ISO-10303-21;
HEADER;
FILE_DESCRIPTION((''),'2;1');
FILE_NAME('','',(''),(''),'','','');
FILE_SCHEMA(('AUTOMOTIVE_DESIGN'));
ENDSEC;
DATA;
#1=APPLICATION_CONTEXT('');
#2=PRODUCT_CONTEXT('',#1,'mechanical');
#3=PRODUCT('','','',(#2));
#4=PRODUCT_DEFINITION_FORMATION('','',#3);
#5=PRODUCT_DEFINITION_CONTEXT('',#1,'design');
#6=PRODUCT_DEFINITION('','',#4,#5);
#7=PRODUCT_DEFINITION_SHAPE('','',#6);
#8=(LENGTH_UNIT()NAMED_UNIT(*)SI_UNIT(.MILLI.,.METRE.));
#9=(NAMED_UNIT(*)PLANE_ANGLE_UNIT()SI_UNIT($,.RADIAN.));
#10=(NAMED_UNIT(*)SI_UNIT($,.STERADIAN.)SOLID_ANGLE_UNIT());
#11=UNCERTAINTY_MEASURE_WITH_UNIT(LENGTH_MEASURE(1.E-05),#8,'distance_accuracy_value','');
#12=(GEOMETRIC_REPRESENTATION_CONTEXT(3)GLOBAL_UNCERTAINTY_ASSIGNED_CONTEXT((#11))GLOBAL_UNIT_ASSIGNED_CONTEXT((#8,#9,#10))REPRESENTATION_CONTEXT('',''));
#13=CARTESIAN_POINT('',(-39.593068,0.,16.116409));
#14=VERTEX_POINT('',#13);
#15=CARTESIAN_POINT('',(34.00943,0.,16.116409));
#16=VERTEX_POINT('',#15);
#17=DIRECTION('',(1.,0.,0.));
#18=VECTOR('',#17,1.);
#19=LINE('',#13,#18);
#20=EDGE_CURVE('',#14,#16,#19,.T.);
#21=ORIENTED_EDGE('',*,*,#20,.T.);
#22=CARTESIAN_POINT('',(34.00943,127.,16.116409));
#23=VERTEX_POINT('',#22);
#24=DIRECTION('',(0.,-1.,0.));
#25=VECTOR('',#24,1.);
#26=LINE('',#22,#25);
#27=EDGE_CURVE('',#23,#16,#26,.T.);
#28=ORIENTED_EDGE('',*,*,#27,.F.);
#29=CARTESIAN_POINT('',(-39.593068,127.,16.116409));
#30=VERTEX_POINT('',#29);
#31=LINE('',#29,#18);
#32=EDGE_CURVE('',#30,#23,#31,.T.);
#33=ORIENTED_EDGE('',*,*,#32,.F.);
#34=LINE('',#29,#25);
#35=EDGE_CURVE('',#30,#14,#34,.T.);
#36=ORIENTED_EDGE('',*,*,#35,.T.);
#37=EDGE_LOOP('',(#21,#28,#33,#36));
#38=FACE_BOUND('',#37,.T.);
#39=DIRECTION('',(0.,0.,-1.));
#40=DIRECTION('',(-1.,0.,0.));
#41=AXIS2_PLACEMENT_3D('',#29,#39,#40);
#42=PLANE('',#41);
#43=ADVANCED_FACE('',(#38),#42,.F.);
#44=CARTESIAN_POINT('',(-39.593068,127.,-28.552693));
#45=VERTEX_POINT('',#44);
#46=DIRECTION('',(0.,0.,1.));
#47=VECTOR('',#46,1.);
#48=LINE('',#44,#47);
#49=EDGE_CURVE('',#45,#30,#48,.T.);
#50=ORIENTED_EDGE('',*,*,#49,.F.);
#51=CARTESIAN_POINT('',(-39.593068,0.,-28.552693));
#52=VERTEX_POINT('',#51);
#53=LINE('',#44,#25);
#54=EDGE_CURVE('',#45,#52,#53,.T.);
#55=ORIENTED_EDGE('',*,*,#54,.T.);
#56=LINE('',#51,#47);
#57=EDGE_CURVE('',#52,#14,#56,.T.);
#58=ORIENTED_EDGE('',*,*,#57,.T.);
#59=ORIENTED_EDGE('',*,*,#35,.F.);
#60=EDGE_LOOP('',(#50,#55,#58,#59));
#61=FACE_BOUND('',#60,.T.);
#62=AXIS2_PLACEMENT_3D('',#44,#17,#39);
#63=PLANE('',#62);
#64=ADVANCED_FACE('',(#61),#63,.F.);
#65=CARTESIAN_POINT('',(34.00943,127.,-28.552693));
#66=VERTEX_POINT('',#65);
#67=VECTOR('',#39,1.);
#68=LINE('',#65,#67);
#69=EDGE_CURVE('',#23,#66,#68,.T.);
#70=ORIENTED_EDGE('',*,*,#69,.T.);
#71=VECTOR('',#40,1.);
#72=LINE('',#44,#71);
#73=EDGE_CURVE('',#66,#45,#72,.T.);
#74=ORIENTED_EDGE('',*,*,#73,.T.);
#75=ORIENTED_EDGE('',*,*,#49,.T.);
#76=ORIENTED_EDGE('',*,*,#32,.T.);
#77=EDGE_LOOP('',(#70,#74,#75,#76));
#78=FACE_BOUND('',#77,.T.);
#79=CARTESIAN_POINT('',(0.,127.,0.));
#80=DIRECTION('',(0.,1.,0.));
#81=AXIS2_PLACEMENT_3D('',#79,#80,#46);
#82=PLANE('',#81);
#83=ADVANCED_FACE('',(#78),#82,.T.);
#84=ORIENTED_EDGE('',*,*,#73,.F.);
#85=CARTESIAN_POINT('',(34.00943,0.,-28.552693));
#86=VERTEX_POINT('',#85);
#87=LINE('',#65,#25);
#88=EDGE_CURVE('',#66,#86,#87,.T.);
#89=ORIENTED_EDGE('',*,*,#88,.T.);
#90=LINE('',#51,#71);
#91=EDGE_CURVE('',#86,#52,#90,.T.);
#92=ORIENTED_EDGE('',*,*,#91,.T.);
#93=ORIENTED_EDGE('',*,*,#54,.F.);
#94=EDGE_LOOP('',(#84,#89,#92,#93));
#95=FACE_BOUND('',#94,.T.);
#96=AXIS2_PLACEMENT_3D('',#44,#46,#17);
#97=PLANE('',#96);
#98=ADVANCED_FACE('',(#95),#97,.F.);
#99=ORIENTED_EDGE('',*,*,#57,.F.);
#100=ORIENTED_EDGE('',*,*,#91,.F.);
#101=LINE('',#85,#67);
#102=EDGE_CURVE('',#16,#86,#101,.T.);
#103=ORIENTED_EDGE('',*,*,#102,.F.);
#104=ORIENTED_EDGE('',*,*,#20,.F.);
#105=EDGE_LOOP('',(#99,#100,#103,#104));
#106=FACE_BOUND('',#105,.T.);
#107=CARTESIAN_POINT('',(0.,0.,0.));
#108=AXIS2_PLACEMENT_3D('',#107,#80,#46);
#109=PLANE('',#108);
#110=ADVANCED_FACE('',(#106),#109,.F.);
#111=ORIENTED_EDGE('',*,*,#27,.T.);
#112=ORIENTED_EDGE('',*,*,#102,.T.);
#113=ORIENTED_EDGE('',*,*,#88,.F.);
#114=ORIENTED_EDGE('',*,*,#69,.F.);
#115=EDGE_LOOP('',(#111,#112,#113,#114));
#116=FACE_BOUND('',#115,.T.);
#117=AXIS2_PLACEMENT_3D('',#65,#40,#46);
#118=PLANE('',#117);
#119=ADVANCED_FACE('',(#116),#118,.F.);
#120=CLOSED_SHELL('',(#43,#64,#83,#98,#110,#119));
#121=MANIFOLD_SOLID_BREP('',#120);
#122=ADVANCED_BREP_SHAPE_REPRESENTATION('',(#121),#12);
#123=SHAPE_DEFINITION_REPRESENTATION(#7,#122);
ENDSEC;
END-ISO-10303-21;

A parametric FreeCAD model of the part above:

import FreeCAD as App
import Part
import Sketcher


def add_polygon(sketch, points):
    """Adds a closed chain of lines whose ends are joined by coincident constraints."""
    first, n = sketch.GeometryCount, len(points)
    for a, b in zip(points, points[1:] + points[:1]):
        sketch.addGeometry(Part.LineSegment(App.Vector(*a, 0), App.Vector(*b, 0)), False)
    for i in range(n):
        sketch.addConstraint(Sketcher.Constraint("Coincident", first + i, 2, first + (i + 1) % n, 1))

doc = App.newDocument("Part")
params = doc.addObject("Spreadsheet::Sheet", "Params")
for row, (alias, value) in enumerate([
    ("pad1_length", "5 in"),
], start=1):
    params.set(f"A{row}", alias)
    params.set(f"B{row}", "=" + value)
    params.setAlias(f"B{row}", alias)

body = doc.addObject("PartDesign::Body", "Body")

sketch1 = body.newObject("Sketcher::SketchObject", "Sketch")
sketch1.AttachmentSupport = (doc.getObject("XZ_Plane"), [""])
sketch1.MapMode = "FlatFace"
add_polygon(sketch1, [(-40, -29), (-40, 16), (34, 16), (34, -29)])
sketch1.addConstraint(Sketcher.Constraint("Vertical", 0))
sketch1.addConstraint(Sketcher.Constraint("Horizontal", 1))
sketch1.addConstraint(Sketcher.Constraint("Vertical", 2))
sketch1.addConstraint(Sketcher.Constraint("Horizontal", 3))
sketch1.addConstraint(Sketcher.Constraint("DistanceX", 1, 1, 1, 2, 73.602498))
sketch1.addConstraint(Sketcher.Constraint("DistanceY", 0, 1, 0, 2, 44.669102))
sketch1.addConstraint(Sketcher.Constraint("DistanceY", -1, 1, 0, 2, 16.116409))
sketch1.addConstraint(Sketcher.Constraint("DistanceX", -1, 1, 1, 2, 34.00943))
pad1 = body.newObject("PartDesign::Pad", "Pad")
pad1.Profile = sketch1
pad1.setExpression("Length", "Params.pad1_length")
pad1.Reversed = True

doc.recompute()
